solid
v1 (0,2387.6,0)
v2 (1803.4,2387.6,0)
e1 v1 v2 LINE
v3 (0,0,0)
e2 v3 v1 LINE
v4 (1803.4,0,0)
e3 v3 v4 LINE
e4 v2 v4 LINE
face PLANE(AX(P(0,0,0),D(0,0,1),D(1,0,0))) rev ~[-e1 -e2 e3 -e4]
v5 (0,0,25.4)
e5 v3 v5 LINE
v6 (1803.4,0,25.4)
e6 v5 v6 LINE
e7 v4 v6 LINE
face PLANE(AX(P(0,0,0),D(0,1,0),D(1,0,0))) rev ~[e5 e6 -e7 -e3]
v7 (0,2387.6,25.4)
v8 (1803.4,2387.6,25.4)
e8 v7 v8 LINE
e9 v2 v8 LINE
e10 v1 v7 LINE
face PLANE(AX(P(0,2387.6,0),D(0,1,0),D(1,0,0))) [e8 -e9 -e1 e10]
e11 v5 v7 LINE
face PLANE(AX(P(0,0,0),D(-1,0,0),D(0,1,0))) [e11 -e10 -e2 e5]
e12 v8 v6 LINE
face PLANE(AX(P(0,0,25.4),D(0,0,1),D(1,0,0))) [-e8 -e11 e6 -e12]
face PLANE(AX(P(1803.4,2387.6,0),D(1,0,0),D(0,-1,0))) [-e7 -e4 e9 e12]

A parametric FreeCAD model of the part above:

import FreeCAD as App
import Part
import Sketcher

V = App.Vector
Q = App.Units.Quantity


def add_polygon(sketch, points):
    """Adds a closed chain of lines whose ends are joined by coincident constraints."""
    first, n = sketch.GeometryCount, len(points)
    for a, b in zip(points, points[1:] + points[:1]):
        sketch.addGeometry(Part.LineSegment(App.Vector(*a, 0), App.Vector(*b, 0)), False)
    for i in range(n):
        sketch.addConstraint(Sketcher.Constraint("Coincident", first + i, 2, first + (i + 1) % n, 1))

doc = App.newDocument("Part")
body = doc.addObject("PartDesign::Body", "Body")

# Sketch on XY plane
sketch1 = body.newObject("Sketcher::SketchObject", "Sketch")
sketch1.AttachmentSupport = (doc.getObject("XY_Plane"), [""])
sketch1.MapMode = "FlatFace"
add_polygon(sketch1, [(0, 2388), (0, 0), (1803, 0), (1803, 2388)])  # lines 0-3
sketch1.addConstraint([
    Sketcher.Constraint("Vertical", 0),
    Sketcher.Constraint("Horizontal", 1),
    Sketcher.Constraint("Vertical", 2),
    Sketcher.Constraint("Horizontal", 3),
    Sketcher.Constraint("Coincident", 0, 2, -1, 1),
    Sketcher.Constraint("DistanceX", 1, 1, 1, 2, Q("71 in")),
    Sketcher.Constraint("DistanceY", 0, 2, 0, 1, Q("94 in")),
])
pad1 = body.newObject("PartDesign::Pad", "Pad")
pad1.Profile = sketch1
pad1.Length = Q("1 in")

doc.recompute()
